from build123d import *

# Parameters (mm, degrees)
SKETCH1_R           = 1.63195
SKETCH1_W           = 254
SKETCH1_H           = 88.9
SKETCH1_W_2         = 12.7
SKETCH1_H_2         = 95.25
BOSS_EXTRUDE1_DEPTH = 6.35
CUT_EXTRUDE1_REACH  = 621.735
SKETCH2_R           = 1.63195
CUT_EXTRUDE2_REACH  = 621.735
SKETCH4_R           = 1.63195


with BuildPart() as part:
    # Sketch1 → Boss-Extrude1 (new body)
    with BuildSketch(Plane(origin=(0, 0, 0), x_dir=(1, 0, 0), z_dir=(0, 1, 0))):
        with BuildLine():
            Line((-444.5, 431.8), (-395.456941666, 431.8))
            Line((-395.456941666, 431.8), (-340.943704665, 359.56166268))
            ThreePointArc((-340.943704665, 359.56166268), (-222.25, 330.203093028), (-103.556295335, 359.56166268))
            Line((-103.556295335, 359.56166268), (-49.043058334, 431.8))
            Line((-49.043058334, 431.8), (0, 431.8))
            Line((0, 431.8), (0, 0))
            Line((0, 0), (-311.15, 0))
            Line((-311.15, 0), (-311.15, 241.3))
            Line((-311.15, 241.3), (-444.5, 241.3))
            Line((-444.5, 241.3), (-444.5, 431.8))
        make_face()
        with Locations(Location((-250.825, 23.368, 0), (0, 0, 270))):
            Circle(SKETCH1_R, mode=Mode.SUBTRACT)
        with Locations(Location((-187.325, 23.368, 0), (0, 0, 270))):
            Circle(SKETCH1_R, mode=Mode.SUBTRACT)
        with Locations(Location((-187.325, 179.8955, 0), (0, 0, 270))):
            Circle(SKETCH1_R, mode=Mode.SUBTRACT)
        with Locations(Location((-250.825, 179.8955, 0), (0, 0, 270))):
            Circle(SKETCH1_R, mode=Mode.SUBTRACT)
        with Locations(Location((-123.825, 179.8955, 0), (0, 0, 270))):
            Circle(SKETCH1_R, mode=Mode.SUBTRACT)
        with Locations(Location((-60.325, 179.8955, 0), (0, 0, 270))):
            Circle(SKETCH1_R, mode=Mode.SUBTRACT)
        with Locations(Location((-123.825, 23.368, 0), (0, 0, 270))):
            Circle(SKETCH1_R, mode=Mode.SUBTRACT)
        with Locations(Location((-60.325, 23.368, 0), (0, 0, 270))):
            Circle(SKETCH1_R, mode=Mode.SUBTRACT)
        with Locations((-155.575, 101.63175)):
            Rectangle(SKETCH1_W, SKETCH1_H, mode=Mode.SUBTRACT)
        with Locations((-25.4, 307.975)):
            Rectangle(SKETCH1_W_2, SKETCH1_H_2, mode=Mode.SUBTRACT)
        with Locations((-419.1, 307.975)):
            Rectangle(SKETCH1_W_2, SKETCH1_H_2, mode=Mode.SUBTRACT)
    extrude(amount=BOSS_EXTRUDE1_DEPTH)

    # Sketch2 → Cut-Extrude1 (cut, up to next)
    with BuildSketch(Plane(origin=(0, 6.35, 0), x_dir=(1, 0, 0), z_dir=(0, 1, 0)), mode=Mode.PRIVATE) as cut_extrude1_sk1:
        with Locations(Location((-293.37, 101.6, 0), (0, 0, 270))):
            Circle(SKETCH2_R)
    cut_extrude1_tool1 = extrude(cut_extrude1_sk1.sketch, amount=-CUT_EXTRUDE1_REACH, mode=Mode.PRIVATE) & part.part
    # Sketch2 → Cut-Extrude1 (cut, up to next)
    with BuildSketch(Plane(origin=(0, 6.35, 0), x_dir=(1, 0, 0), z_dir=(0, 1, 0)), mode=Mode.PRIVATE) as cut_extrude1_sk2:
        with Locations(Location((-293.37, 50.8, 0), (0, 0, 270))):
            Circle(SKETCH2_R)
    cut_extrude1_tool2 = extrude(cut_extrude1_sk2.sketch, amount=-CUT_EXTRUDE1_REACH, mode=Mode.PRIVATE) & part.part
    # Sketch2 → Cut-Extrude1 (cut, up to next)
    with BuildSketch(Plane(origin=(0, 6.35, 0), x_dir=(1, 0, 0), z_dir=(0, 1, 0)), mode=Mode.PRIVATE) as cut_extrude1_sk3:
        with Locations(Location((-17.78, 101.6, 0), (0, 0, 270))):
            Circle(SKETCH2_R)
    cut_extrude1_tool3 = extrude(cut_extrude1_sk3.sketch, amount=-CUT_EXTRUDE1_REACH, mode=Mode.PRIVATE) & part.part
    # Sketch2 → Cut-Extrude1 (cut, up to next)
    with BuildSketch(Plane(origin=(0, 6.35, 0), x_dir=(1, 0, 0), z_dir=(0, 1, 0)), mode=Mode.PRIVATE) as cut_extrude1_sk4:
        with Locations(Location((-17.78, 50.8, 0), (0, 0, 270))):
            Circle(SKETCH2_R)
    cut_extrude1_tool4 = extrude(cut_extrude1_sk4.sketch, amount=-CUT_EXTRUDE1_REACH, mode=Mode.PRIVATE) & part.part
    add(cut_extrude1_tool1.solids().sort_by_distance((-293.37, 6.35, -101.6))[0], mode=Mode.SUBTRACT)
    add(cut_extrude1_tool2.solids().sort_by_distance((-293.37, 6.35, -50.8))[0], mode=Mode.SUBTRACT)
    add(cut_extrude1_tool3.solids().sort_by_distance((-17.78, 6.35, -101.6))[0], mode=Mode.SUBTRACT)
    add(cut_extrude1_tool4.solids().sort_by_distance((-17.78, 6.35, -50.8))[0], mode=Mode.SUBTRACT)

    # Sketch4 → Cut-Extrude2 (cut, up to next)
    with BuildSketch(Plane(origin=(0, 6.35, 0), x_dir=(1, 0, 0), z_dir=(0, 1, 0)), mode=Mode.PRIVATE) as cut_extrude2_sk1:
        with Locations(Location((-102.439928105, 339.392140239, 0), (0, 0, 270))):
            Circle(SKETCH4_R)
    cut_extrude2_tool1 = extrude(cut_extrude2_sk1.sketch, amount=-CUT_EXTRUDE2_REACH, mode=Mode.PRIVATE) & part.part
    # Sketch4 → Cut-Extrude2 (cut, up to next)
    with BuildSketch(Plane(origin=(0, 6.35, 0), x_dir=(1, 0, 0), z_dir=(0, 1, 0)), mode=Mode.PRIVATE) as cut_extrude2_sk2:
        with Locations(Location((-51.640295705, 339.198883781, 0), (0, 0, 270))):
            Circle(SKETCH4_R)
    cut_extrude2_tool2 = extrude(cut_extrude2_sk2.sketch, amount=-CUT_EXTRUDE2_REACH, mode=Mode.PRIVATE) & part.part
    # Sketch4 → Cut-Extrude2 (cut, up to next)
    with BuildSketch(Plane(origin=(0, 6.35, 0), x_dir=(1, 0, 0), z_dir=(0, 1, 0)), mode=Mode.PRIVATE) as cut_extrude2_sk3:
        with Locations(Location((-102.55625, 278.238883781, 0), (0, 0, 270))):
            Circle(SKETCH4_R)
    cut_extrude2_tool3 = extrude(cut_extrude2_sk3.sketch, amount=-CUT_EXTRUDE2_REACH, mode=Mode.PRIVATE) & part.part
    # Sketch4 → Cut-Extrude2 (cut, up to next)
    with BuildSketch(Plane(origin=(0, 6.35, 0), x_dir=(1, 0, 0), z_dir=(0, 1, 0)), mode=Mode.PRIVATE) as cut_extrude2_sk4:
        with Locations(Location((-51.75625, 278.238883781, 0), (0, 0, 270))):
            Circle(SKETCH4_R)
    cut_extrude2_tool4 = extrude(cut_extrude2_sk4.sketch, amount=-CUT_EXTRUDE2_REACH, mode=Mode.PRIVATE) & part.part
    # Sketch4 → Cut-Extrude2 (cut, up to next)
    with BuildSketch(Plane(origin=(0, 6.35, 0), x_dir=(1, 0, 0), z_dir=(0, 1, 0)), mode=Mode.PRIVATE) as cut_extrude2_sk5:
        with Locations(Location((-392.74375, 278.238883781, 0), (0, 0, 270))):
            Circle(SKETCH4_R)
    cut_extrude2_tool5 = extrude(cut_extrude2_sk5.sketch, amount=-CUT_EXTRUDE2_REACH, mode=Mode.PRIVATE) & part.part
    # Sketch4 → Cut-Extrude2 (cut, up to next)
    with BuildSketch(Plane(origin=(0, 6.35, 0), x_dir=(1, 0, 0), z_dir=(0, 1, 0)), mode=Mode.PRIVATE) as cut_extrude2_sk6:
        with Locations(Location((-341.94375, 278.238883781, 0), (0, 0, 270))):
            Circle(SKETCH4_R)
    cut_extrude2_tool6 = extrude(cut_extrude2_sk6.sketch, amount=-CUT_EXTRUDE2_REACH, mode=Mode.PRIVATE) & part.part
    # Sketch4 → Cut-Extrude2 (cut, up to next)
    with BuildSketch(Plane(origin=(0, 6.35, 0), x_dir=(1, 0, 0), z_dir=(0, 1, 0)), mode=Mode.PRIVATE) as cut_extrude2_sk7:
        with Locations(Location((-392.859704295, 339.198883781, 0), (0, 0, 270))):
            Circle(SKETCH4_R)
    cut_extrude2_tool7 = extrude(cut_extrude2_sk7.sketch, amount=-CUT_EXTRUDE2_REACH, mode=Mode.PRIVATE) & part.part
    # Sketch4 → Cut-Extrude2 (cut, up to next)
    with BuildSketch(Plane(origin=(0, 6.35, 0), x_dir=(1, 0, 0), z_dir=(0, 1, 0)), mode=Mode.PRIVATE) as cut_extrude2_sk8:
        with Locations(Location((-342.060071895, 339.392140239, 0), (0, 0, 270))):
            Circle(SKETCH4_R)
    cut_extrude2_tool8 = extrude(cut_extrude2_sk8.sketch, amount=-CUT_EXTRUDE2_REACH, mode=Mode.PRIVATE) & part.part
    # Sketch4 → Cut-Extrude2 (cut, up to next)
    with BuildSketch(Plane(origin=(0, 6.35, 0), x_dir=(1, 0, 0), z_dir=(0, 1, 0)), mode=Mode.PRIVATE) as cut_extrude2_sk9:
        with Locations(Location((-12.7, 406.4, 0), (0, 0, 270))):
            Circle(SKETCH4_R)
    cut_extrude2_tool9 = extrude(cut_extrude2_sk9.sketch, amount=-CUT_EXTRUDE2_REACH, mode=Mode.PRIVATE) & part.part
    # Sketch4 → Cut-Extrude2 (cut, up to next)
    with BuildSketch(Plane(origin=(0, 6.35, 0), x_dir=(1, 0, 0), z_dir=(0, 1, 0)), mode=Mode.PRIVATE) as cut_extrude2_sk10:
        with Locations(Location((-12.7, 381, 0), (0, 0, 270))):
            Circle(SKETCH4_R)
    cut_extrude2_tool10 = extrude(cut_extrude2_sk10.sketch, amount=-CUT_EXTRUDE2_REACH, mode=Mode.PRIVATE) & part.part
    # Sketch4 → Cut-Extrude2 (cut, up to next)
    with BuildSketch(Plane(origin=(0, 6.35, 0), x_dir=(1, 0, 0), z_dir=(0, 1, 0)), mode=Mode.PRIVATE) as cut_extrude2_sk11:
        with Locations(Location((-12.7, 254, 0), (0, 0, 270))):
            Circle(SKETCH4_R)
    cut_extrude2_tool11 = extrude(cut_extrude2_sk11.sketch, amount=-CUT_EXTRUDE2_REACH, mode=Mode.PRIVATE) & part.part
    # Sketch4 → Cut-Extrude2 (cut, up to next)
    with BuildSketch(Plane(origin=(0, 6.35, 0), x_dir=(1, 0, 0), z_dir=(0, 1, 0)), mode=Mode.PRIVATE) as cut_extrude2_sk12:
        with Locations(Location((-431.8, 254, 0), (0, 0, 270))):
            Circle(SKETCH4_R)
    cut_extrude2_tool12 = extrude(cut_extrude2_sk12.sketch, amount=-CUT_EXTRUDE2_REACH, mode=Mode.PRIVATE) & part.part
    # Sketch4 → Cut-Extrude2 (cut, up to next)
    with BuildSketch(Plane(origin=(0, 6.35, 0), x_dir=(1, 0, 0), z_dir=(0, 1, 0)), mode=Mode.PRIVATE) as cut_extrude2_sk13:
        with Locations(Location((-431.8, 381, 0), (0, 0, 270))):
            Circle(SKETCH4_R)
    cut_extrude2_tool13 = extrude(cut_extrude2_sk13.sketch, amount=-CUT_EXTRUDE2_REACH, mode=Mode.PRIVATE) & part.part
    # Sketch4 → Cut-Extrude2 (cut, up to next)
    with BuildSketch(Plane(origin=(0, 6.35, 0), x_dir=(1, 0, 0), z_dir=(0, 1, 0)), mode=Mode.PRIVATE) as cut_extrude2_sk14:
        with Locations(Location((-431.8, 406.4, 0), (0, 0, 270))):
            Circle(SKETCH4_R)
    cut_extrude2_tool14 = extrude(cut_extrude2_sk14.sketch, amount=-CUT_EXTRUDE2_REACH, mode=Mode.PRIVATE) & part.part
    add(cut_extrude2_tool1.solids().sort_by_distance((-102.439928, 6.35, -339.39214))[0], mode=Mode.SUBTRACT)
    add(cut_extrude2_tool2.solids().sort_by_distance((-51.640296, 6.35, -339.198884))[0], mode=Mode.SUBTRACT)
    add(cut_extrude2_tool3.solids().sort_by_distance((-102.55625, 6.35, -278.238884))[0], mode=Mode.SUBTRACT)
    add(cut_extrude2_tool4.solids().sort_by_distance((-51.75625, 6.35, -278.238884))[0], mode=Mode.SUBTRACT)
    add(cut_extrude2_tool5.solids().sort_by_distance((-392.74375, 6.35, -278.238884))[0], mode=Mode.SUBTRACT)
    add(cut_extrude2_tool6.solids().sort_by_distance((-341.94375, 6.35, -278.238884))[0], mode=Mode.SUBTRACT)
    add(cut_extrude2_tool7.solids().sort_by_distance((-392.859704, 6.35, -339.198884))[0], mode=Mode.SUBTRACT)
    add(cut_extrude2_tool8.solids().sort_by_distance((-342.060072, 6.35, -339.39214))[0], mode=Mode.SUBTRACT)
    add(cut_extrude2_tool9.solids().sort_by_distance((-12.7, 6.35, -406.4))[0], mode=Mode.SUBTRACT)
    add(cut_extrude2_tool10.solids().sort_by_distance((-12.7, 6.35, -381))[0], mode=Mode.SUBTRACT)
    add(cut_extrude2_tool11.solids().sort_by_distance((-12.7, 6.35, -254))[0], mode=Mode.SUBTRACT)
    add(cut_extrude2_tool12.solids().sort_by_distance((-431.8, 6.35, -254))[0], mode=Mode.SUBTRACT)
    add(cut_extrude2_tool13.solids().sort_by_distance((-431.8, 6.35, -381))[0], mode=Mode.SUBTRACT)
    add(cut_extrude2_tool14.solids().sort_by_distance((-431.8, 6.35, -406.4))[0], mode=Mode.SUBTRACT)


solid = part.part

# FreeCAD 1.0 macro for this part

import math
import FreeCAD as App
import Part
import Sketcher
Q = App.Units.Quantity

doc = App.newDocument("Part")
body = doc.addObject("PartDesign::Body", "Body")

# Sketch on XZ plane
sketch1 = body.newObject("Sketcher::SketchObject", "Sketch")
sketch1.AttachmentSupport = (doc.getObject("XZ_Plane"), [""])
sketch1.MapMode = "FlatFace"
sketch1.addGeometry([
    Part.LineSegment(App.Vector(-395.5, -431.8, 0), App.Vector(-444.5, -431.8, 0)),  # 0
    Part.LineSegment(App.Vector(-444.5, -431.8, 0), App.Vector(-444.5, -241.3, 0)),  # 1
    Part.LineSegment(App.Vector(-444.5, -241.3, 0), App.Vector(-311.1, -241.3, 0)),  # 2
    Part.LineSegment(App.Vector(-311.1, -241.3, 0), App.Vector(-311.1, 0, 0)),  # 3
    Part.LineSegment(App.Vector(-311.1, 0, 0), App.Vector(0, 0, 0)),  # 4
    Part.LineSegment(App.Vector(0, 0, 0), App.Vector(0, -431.8, 0)),  # 5
    Part.LineSegment(App.Vector(0, -431.8, 0), App.Vector(-49, -431.8, 0)),  # 6
    Part.LineSegment(App.Vector(-49, -431.8, 0), App.Vector(-103.6, -359.6, 0)),  # 7
    Part.ArcOfCircle(Part.Circle(App.Vector(-222.2, -584.8, 0), App.Vector(0, 0, 1), 254.6), math.radians(62), math.radians(118)),  # 8
    Part.LineSegment(App.Vector(-340.9, -359.6, 0), App.Vector(-395.5, -431.8, 0)),  # 9
    Part.Circle(App.Vector(-60.3, -23.4, 0), App.Vector(0, 0, 1), 1.6),  # 10
    Part.Circle(App.Vector(-123.8, -23.4, 0), App.Vector(0, 0, 1), 1.6),  # 11
    Part.Circle(App.Vector(-187.3, -23.4, 0), App.Vector(0, 0, 1), 1.6),  # 12
    Part.LineSegment(App.Vector(-282.6, -57.2, 0), App.Vector(-282.6, -146.1, 0)),  # 13
    Part.LineSegment(App.Vector(-282.6, -146.1, 0), App.Vector(-28.6, -146.1, 0)),  # 14
    Part.LineSegment(App.Vector(-28.6, -146.1, 0), App.Vector(-28.6, -57.2, 0)),  # 15
    Part.LineSegment(App.Vector(-28.6, -57.2, 0), App.Vector(-282.6, -57.2, 0)),  # 16
    Part.Circle(App.Vector(-60.3, -179.9, 0), App.Vector(0, 0, 1), 1.6),  # 17
    Part.Circle(App.Vector(-123.8, -179.9, 0), App.Vector(0, 0, 1), 1.6),  # 18
    Part.Circle(App.Vector(-187.3, -179.9, 0), App.Vector(0, 0, 1), 1.6),  # 19
    Part.Circle(App.Vector(-250.8, -23.4, 0), App.Vector(0, 0, 1), 1.6),  # 20
    Part.Circle(App.Vector(-250.8, -179.9, 0), App.Vector(0, 0, 1), 1.6),  # 21
    Part.LineSegment(App.Vector(-31.8, -260.4, 0), App.Vector(-31.8, -355.6, 0)),  # 22
    Part.LineSegment(App.Vector(-31.8, -355.6, 0), App.Vector(-19.1, -355.6, 0)),  # 23
    Part.LineSegment(App.Vector(-19.1, -355.6, 0), App.Vector(-19.1, -260.4, 0)),  # 24
    Part.LineSegment(App.Vector(-19.1, -260.4, 0), App.Vector(-31.8, -260.4, 0)),  # 25
    Part.LineSegment(App.Vector(-425.4, -260.4, 0), App.Vector(-425.4, -355.6, 0)),  # 26
    Part.LineSegment(App.Vector(-425.4, -355.6, 0), App.Vector(-412.8, -355.6, 0)),  # 27
    Part.LineSegment(App.Vector(-412.8, -355.6, 0), App.Vector(-412.8, -260.4, 0)),  # 28
    Part.LineSegment(App.Vector(-412.8, -260.4, 0), App.Vector(-425.4, -260.4, 0)),  # 29
], False)
sketch1.addConstraint([
    Sketcher.Constraint("Coincident", 0, 2, 1, 1),
    Sketcher.Constraint("Coincident", 1, 2, 2, 1),
    Sketcher.Constraint("Coincident", 2, 2, 3, 1),
    Sketcher.Constraint("Coincident", 3, 2, 4, 1),
    Sketcher.Constraint("Coincident", 4, 2, 5, 1),
    Sketcher.Constraint("Coincident", 5, 2, 6, 1),
    Sketcher.Constraint("Coincident", 6, 2, 7, 1),
    Sketcher.Constraint("Coincident", 7, 2, 8, 1),
    Sketcher.Constraint("Coincident", 8, 2, 9, 1),
    Sketcher.Constraint("Coincident", 9, 2, 0, 1),
    Sketcher.Constraint("Coincident", 13, 2, 14, 1),
    Sketcher.Constraint("Coincident", 14, 2, 15, 1),
    Sketcher.Constraint("Coincident", 15, 2, 16, 1),
    Sketcher.Constraint("Coincident", 16, 2, 13, 1),
    Sketcher.Constraint("Coincident", 22, 2, 23, 1),
    Sketcher.Constraint("Coincident", 23, 2, 24, 1),
    Sketcher.Constraint("Coincident", 24, 2, 25, 1),
    Sketcher.Constraint("Coincident", 25, 2, 22, 1),
    Sketcher.Constraint("Coincident", 26, 2, 27, 1),
    Sketcher.Constraint("Coincident", 27, 2, 28, 1),
    Sketcher.Constraint("Coincident", 28, 2, 29, 1),
    Sketcher.Constraint("Coincident", 29, 2, 26, 1),
    Sketcher.Constraint("Horizontal", 0),
    Sketcher.Constraint("Vertical", 1),
    Sketcher.Constraint("Horizontal", 2),
    Sketcher.Constraint("Vertical", 3),
    Sketcher.Constraint("Horizontal", 4),
    Sketcher.Constraint("Vertical", 5),
    Sketcher.Constraint("Horizontal", 6),
    Sketcher.Constraint("Vertical", 13),
    Sketcher.Constraint("Horizontal", 14),
    Sketcher.Constraint("Vertical", 15),
    Sketcher.Constraint("Horizontal", 16),
    Sketcher.Constraint("Vertical", 22),
    Sketcher.Constraint("Horizontal", 23),
    Sketcher.Constraint("Vertical", 24),
    Sketcher.Constraint("Horizontal", 25),
    Sketcher.Constraint("Vertical", 26),
    Sketcher.Constraint("Horizontal", 27),
    Sketcher.Constraint("Vertical", 28),
    Sketcher.Constraint("Horizontal", 29),
    Sketcher.Constraint("Coincident", 4, 2, -1, 1),
    Sketcher.Constraint("Equal", 10, 11),
    Sketcher.Constraint("Equal", 11, 12),
    Sketcher.Constraint("Equal", 12, 17),
    Sketcher.Constraint("Equal", 17, 18),
    Sketcher.Constraint("Equal", 18, 19),
    Sketcher.Constraint("Equal", 19, 20),
    Sketcher.Constraint("Equal", 20, 21),
    Sketcher.Constraint("Horizontal", 10, 3, 11, 3),
    Sketcher.Constraint("Horizontal", 11, 3, 12, 3),
    Sketcher.Constraint("Horizontal", 17, 3, 18, 3),
    Sketcher.Constraint("Horizontal", 18, 3, 19, 3),
    Sketcher.Constraint("Horizontal", 12, 3, 20, 3),
    Sketcher.Constraint("Horizontal", 19, 3, 21, 3),
    Sketcher.Constraint("Horizontal", 0, 2, 5, 2),
    Sketcher.Constraint("Horizontal", 7, 2, 8, 2),
    Sketcher.Constraint("Horizontal", 23, 2, 26, 2),
    Sketcher.Constraint("Horizontal", 25, 2, 28, 2),
    Sketcher.Constraint("Vertical", 10, 3, 17, 3),
    Sketcher.Constraint("Vertical", 11, 3, 18, 3),
    Sketcher.Constraint("Vertical", 12, 3, 19, 3),
    Sketcher.Constraint("Vertical", 20, 3, 21, 3),
    Sketcher.Constraint("Equal", 0, 6),
    Sketcher.Constraint("Equal", 25, 27),
    Sketcher.Constraint("Equal", 7, 9),
    Sketcher.Constraint("DistanceX", 14, 1, 14, 2, Q("10 in")),
    Sketcher.Constraint("DistanceY", 5, 2, 5, 1, Q("17 in")),
    Sketcher.Constraint("DistanceX", 23, 1, 23, 2, Q("0.5 in")),
    Sketcher.Constraint("DistanceY", 1, 1, 1, 2, Q("7.5 in")),
    Sketcher.Constraint("DistanceY", 13, 2, 13, 1, Q("3.5 in")),
    Sketcher.Constraint("DistanceY", 22, 2, -1, 1, Q("14 in")),
    Sketcher.Constraint("DistanceX", 12, 3, 10, 3, Q("5 in")),
    Sketcher.Constraint("DistanceX", 20, 3, 11, 3, Q("5 in")),
    Sketcher.Constraint("DistanceX", 28, 2, 2, 2, Q("4 in")),
    Sketcher.Constraint("Diameter", 10, Q("0.1285 in")),
    Sketcher.Constraint("DistanceX", 2, 1, 2, 2, Q("5.25 in")),
    Sketcher.Constraint("DistanceX", 4, 1, 4, 2, Q("12.25 in")),
    Sketcher.Constraint("DistanceY", 22, 2, 22, 1, Q("3.75 in")),
    Sketcher.Constraint("DistanceX", 11, 3, 10, 3, Q("2.5 in")),
    Sketcher.Constraint("DistanceY", 10, 3, -1, 1, Q("0.92 in")),
    Sketcher.Constraint("DistanceX", 22, 2, -1, 1, Q("1.25 in")),
    Sketcher.Constraint("DistanceX", 13, 2, 21, 3, Q("1.25 in")),
    Sketcher.Constraint("DistanceX", 10, 3, -1, 1, Q("2.375 in")),
    Sketcher.Constraint("Radius", 8, Q("254.61256 mm")),
    Sketcher.Constraint("DistanceY", 17, 3, -1, 1, Q("7.0825 in")),
    Sketcher.Constraint("DistanceX", 0, 2, 0, 1, Q("49.043058 mm")),
    Sketcher.Constraint("DistanceY", 13, 2, -1, 1, Q("146.08175 mm")),
    Sketcher.Constraint("Distance", 7, Q("90.499008 mm")),
    Sketcher.Constraint("DistanceY", 8, 3, -1, 1, Q("584.815653 mm")),
])
pad1 = body.newObject("PartDesign::Pad", "Pad")
pad1.Profile = sketch1
pad1.Length = Q("0.25 in")
pad1.Reversed = True

# Sketch on XZ plane
sketch2 = body.newObject("Sketcher::SketchObject", "Sketch001")
sketch2.AttachmentSupport = (doc.getObject("XZ_Plane"), [""])
sketch2.MapMode = "FlatFace"
sketch2.AttachmentOffset = App.Placement(App.Vector(0, 0, -0.25 * 25.4), App.Rotation())
sketch2.addGeometry(Part.Circle(App.Vector(-293.4, -101.6, 0), App.Vector(0, 0, 1), 1.6), False)
sketch2.addConstraint([
    Sketcher.Constraint("DistanceY", 0, 3, -1, 1, Q("4 in")),
    Sketcher.Constraint("Diameter", 0, Q("0.1285 in")),
    Sketcher.Constraint("DistanceX", 0, 3, -1, 1, Q("11.55 in")),
])
pocket1 = body.newObject("PartDesign::Pocket", "Pocket")
pocket1.Profile = sketch2
pocket1.Type = "UpToFirst"
pocket1.Reversed = True

# Sketch on XZ plane
sketch3 = body.newObject("Sketcher::SketchObject", "Sketch002")
sketch3.AttachmentSupport = (doc.getObject("XZ_Plane"), [""])
sketch3.MapMode = "FlatFace"
sketch3.AttachmentOffset = App.Placement(App.Vector(0, 0, -0.25 * 25.4), App.Rotation())
sketch3.addGeometry(Part.Circle(App.Vector(-293.4, -50.8, 0), App.Vector(0, 0, 1), 1.6), False)
sketch3.addConstraint([
    Sketcher.Constraint("DistanceY", 0, 3, -1, 1, Q("2 in")),
    Sketcher.Constraint("Diameter", 0, Q("0.1285 in")),
    Sketcher.Constraint("DistanceX", 0, 3, -1, 1, Q("11.55 in")),
])
pocket2 = body.newObject("PartDesign::Pocket", "Pocket001")
pocket2.Profile = sketch3
pocket2.Type = "UpToFirst"
pocket2.Reversed = True

# Sketch on XZ plane
sketch4 = body.newObject("Sketcher::SketchObject", "Sketch003")
sketch4.AttachmentSupport = (doc.getObject("XZ_Plane"), [""])
sketch4.MapMode = "FlatFace"
sketch4.AttachmentOffset = App.Placement(App.Vector(0, 0, -0.25 * 25.4), App.Rotation())
sketch4.addGeometry(Part.Circle(App.Vector(-17.8, -101.6, 0), App.Vector(0, 0, 1), 1.6), False)
sketch4.addConstraint([
    Sketcher.Constraint("DistanceY", 0, 3, -1, 1, Q("4 in")),
    Sketcher.Constraint("Diameter", 0, Q("0.1285 in")),
    Sketcher.Constraint("DistanceX", 0, 3, -1, 1, Q("0.7 in")),
])
pocket3 = body.newObject("PartDesign::Pocket", "Pocket002")
pocket3.Profile = sketch4
pocket3.Type = "UpToFirst"
pocket3.Reversed = True

# Sketch on XZ plane
sketch5 = body.newObject("Sketcher::SketchObject", "Sketch004")
sketch5.AttachmentSupport = (doc.getObject("XZ_Plane"), [""])
sketch5.MapMode = "FlatFace"
sketch5.AttachmentOffset = App.Placement(App.Vector(0, 0, -0.25 * 25.4), App.Rotation())
sketch5.addGeometry(Part.Circle(App.Vector(-17.8, -50.8, 0), App.Vector(0, 0, 1), 1.6), False)
sketch5.addConstraint([
    Sketcher.Constraint("DistanceY", 0, 3, -1, 1, Q("2 in")),
    Sketcher.Constraint("Diameter", 0, Q("0.1285 in")),
    Sketcher.Constraint("DistanceX", 0, 3, -1, 1, Q("0.7 in")),
])
pocket4 = body.newObject("PartDesign::Pocket", "Pocket003")
pocket4.Profile = sketch5
pocket4.Type = "UpToFirst"
pocket4.Reversed = True

# Sketch on XZ plane
sketch6 = body.newObject("Sketcher::SketchObject", "Sketch005")
sketch6.AttachmentSupport = (doc.getObject("XZ_Plane"), [""])
sketch6.MapMode = "FlatFace"
sketch6.AttachmentOffset = App.Placement(App.Vector(0, 0, -0.25 * 25.4), App.Rotation())
sketch6.addGeometry(Part.Circle(App.Vector(-102.4, -339.4, 0), App.Vector(0, 0, 1), 1.6), False)
sketch6.addConstraint([
    Sketcher.Constraint("Diameter", 0, Q("0.1285 in")),
    Sketcher.Constraint("DistanceX", 0, 3, -1, 1, Q("102.439928 mm")),
    Sketcher.Constraint("DistanceY", 0, 3, -1, 1, Q("339.39214 mm")),
])
pocket5 = body.newObject("PartDesign::Pocket", "Pocket004")
pocket5.Profile = sketch6
pocket5.Type = "UpToFirst"
pocket5.Reversed = True

# Sketch on XZ plane
sketch7 = body.newObject("Sketcher::SketchObject", "Sketch006")
sketch7.AttachmentSupport = (doc.getObject("XZ_Plane"), [""])
sketch7.MapMode = "FlatFace"
sketch7.AttachmentOffset = App.Placement(App.Vector(0, 0, -0.25 * 25.4), App.Rotation())
sketch7.addGeometry(Part.Circle(App.Vector(-51.6, -339.2, 0), App.Vector(0, 0, 1), 1.6), False)
sketch7.addConstraint([
    Sketcher.Constraint("Diameter", 0, Q("0.1285 in")),
    Sketcher.Constraint("DistanceX", 0, 3, -1, 1, Q("51.640296 mm")),
    Sketcher.Constraint("DistanceY", 0, 3, -1, 1, Q("339.198884 mm")),
])
pocket6 = body.newObject("PartDesign::Pocket", "Pocket005")
pocket6.Profile = sketch7
pocket6.Type = "UpToFirst"
pocket6.Reversed = True

# Sketch on XZ plane
sketch8 = body.newObject("Sketcher::SketchObject", "Sketch007")
sketch8.AttachmentSupport = (doc.getObject("XZ_Plane"), [""])
sketch8.MapMode = "FlatFace"
sketch8.AttachmentOffset = App.Placement(App.Vector(0, 0, -0.25 * 25.4), App.Rotation())
sketch8.addGeometry(Part.Circle(App.Vector(-102.6, -278.2, 0), App.Vector(0, 0, 1), 1.6), False)
sketch8.addConstraint([
    Sketcher.Constraint("Diameter", 0, Q("0.1285 in")),
    Sketcher.Constraint("DistanceX", 0, 3, -1, 1, Q("102.55625 mm")),
    Sketcher.Constraint("DistanceY", 0, 3, -1, 1, Q("278.238884 mm")),
])
pocket7 = body.newObject("PartDesign::Pocket", "Pocket006")
pocket7.Profile = sketch8
pocket7.Type = "UpToFirst"
pocket7.Reversed = True

# Sketch on XZ plane
sketch9 = body.newObject("Sketcher::SketchObject", "Sketch008")
sketch9.AttachmentSupport = (doc.getObject("XZ_Plane"), [""])
sketch9.MapMode = "FlatFace"
sketch9.AttachmentOffset = App.Placement(App.Vector(0, 0, -0.25 * 25.4), App.Rotation())
sketch9.addGeometry(Part.Circle(App.Vector(-51.8, -278.2, 0), App.Vector(0, 0, 1), 1.6), False)
sketch9.addConstraint([
    Sketcher.Constraint("Diameter", 0, Q("0.1285 in")),
    Sketcher.Constraint("DistanceX", 0, 3, -1, 1, Q("51.75625 mm")),
    Sketcher.Constraint("DistanceY", 0, 3, -1, 1, Q("278.238884 mm")),
])
pocket8 = body.newObject("PartDesign::Pocket", "Pocket007")
pocket8.Profile = sketch9
pocket8.Type = "UpToFirst"
pocket8.Reversed = True

# Sketch on XZ plane
sketch10 = body.newObject("Sketcher::SketchObject", "Sketch009")
sketch10.AttachmentSupport = (doc.getObject("XZ_Plane"), [""])
sketch10.MapMode = "FlatFace"
sketch10.AttachmentOffset = App.Placement(App.Vector(0, 0, -0.25 * 25.4), App.Rotation())
sketch10.addGeometry(Part.Circle(App.Vector(-392.7, -278.2, 0), App.Vector(0, 0, 1), 1.6), False)
sketch10.addConstraint([
    Sketcher.Constraint("Diameter", 0, Q("0.1285 in")),
    Sketcher.Constraint("DistanceX", 0, 3, -1, 1, Q("392.74375 mm")),
    Sketcher.Constraint("DistanceY", 0, 3, -1, 1, Q("278.238884 mm")),
])
pocket9 = body.newObject("PartDesign::Pocket", "Pocket008")
pocket9.Profile = sketch10
pocket9.Type = "UpToFirst"
pocket9.Reversed = True

# Sketch on XZ plane
sketch11 = body.newObject("Sketcher::SketchObject", "Sketch010")
sketch11.AttachmentSupport = (doc.getObject("XZ_Plane"), [""])
sketch11.MapMode = "FlatFace"
sketch11.AttachmentOffset = App.Placement(App.Vector(0, 0, -0.25 * 25.4), App.Rotation())
sketch11.addGeometry(Part.Circle(App.Vector(-341.9, -278.2, 0), App.Vector(0, 0, 1), 1.6), False)
sketch11.addConstraint([
    Sketcher.Constraint("Diameter", 0, Q("0.1285 in")),
    Sketcher.Constraint("DistanceX", 0, 3, -1, 1, Q("341.94375 mm")),
    Sketcher.Constraint("DistanceY", 0, 3, -1, 1, Q("278.238884 mm")),
])
pocket10 = body.newObject("PartDesign::Pocket", "Pocket009")
pocket10.Profile = sketch11
pocket10.Type = "UpToFirst"
pocket10.Reversed = True

# Sketch on XZ plane
sketch12 = body.newObject("Sketcher::SketchObject", "Sketch011")
sketch12.AttachmentSupport = (doc.getObject("XZ_Plane"), [""])
sketch12.MapMode = "FlatFace"
sketch12.AttachmentOffset = App.Placement(App.Vector(0, 0, -0.25 * 25.4), App.Rotation())
sketch12.addGeometry(Part.Circle(App.Vector(-392.9, -339.2, 0), App.Vector(0, 0, 1), 1.6), False)
sketch12.addConstraint([
    Sketcher.Constraint("Diameter", 0, Q("0.1285 in")),
    Sketcher.Constraint("DistanceX", 0, 3, -1, 1, Q("392.859704 mm")),
    Sketcher.Constraint("DistanceY", 0, 3, -1, 1, Q("339.198884 mm")),
])
pocket11 = body.newObject("PartDesign::Pocket", "Pocket010")
pocket11.Profile = sketch12
pocket11.Type = "UpToFirst"
pocket11.Reversed = True

# Sketch on XZ plane
sketch13 = body.newObject("Sketcher::SketchObject", "Sketch012")
sketch13.AttachmentSupport = (doc.getObject("XZ_Plane"), [""])
sketch13.MapMode = "FlatFace"
sketch13.AttachmentOffset = App.Placement(App.Vector(0, 0, -0.25 * 25.4), App.Rotation())
sketch13.addGeometry(Part.Circle(App.Vector(-342.1, -339.4, 0), App.Vector(0, 0, 1), 1.6), False)
sketch13.addConstraint([
    Sketcher.Constraint("Diameter", 0, Q("0.1285 in")),
    Sketcher.Constraint("DistanceX", 0, 3, -1, 1, Q("342.060072 mm")),
    Sketcher.Constraint("DistanceY", 0, 3, -1, 1, Q("339.39214 mm")),
])
pocket12 = body.newObject("PartDesign::Pocket", "Pocket011")
pocket12.Profile = sketch13
pocket12.Type = "UpToFirst"
pocket12.Reversed = True

# Sketch on XZ plane
sketch14 = body.newObject("Sketcher::SketchObject", "Sketch013")
sketch14.AttachmentSupport = (doc.getObject("XZ_Plane"), [""])
sketch14.MapMode = "FlatFace"
sketch14.AttachmentOffset = App.Placement(App.Vector(0, 0, -0.25 * 25.4), App.Rotation())
sketch14.addGeometry(Part.Circle(App.Vector(-12.7, -406.4, 0), App.Vector(0, 0, 1), 1.6), False)
sketch14.addConstraint([
    Sketcher.Constraint("DistanceY", 0, 3, -1, 1, Q("16 in")),
    Sketcher.Constraint("Diameter", 0, Q("0.1285 in")),
    Sketcher.Constraint("DistanceX", 0, 3, -1, 1, Q("0.5 in")),
])
pocket13 = body.newObject("PartDesign::Pocket", "Pocket012")
pocket13.Profile = sketch14
pocket13.Type = "UpToFirst"
pocket13.Reversed = True

# Sketch on XZ plane
sketch15 = body.newObject("Sketcher::SketchObject", "Sketch014")
sketch15.AttachmentSupport = (doc.getObject("XZ_Plane"), [""])
sketch15.MapMode = "FlatFace"
sketch15.AttachmentOffset = App.Placement(App.Vector(0, 0, -0.25 * 25.4), App.Rotation())
sketch15.addGeometry(Part.Circle(App.Vector(-12.7, -381, 0), App.Vector(0, 0, 1), 1.6), False)
sketch15.addConstraint([
    Sketcher.Constraint("DistanceY", 0, 3, -1, 1, Q("15 in")),
    Sketcher.Constraint("Diameter", 0, Q("0.1285 in")),
    Sketcher.Constraint("DistanceX", 0, 3, -1, 1, Q("0.5 in")),
])
pocket14 = body.newObject("PartDesign::Pocket", "Pocket013")
pocket14.Profile = sketch15
pocket14.Type = "UpToFirst"
pocket14.Reversed = True

# Sketch on XZ plane
sketch16 = body.newObject("Sketcher::SketchObject", "Sketch015")
sketch16.AttachmentSupport = (doc.getObject("XZ_Plane"), [""])
sketch16.MapMode = "FlatFace"
sketch16.AttachmentOffset = App.Placement(App.Vector(0, 0, -0.25 * 25.4), App.Rotation())
sketch16.addGeometry(Part.Circle(App.Vector(-12.7, -254, 0), App.Vector(0, 0, 1), 1.6), False)
sketch16.addConstraint([
    Sketcher.Constraint("DistanceY", 0, 3, -1, 1, Q("10 in")),
    Sketcher.Constraint("Diameter", 0, Q("0.1285 in")),
    Sketcher.Constraint("DistanceX", 0, 3, -1, 1, Q("0.5 in")),
])
pocket15 = body.newObject("PartDesign::Pocket", "Pocket014")
pocket15.Profile = sketch16
pocket15.Type = "UpToFirst"
pocket15.Reversed = True

# Sketch on XZ plane
sketch17 = body.newObject("Sketcher::SketchObject", "Sketch016")
sketch17.AttachmentSupport = (doc.getObject("XZ_Plane"), [""])
sketch17.MapMode = "FlatFace"
sketch17.AttachmentOffset = App.Placement(App.Vector(0, 0, -0.25 * 25.4), App.Rotation())
sketch17.addGeometry(Part.Circle(App.Vector(-431.8, -254, 0), App.Vector(0, 0, 1), 1.6), False)
sketch17.addConstraint([
    Sketcher.Constraint("DistanceX", 0, 3, -1, 1, Q("17 in")),
    Sketcher.Constraint("DistanceY", 0, 3, -1, 1, Q("10 in")),
    Sketcher.Constraint("Diameter", 0, Q("0.1285 in")),
])
pocket16 = body.newObject("PartDesign::Pocket", "Pocket015")
pocket16.Profile = sketch17
pocket16.Type = "UpToFirst"
pocket16.Reversed = True

# Sketch on XZ plane
sketch18 = body.newObject("Sketcher::SketchObject", "Sketch017")
sketch18.AttachmentSupport = (doc.getObject("XZ_Plane"), [""])
sketch18.MapMode = "FlatFace"
sketch18.AttachmentOffset = App.Placement(App.Vector(0, 0, -0.25 * 25.4), App.Rotation())
sketch18.addGeometry(Part.Circle(App.Vector(-431.8, -381, 0), App.Vector(0, 0, 1), 1.6), False)
sketch18.addConstraint([
    Sketcher.Constraint("DistanceX", 0, 3, -1, 1, Q("17 in")),
    Sketcher.Constraint("DistanceY", 0, 3, -1, 1, Q("15 in")),
    Sketcher.Constraint("Diameter", 0, Q("0.1285 in")),
])
pocket17 = body.newObject("PartDesign::Pocket", "Pocket016")
pocket17.Profile = sketch18
pocket17.Type = "UpToFirst"
pocket17.Reversed = True

# Sketch on XZ plane
sketch19 = body.newObject("Sketcher::SketchObject", "Sketch018")
sketch19.AttachmentSupport = (doc.getObject("XZ_Plane"), [""])
sketch19.MapMode = "FlatFace"
sketch19.AttachmentOffset = App.Placement(App.Vector(0, 0, -0.25 * 25.4), App.Rotation())
sketch19.addGeometry(Part.Circle(App.Vector(-431.8, -406.4, 0), App.Vector(0, 0, 1), 1.6), False)
sketch19.addConstraint([
    Sketcher.Constraint("DistanceX", 0, 3, -1, 1, Q("17 in")),
    Sketcher.Constraint("DistanceY", 0, 3, -1, 1, Q("16 in")),
    Sketcher.Constraint("Diameter", 0, Q("0.1285 in")),
])
pocket18 = body.newObject("PartDesign::Pocket", "Pocket017")
pocket18.Profile = sketch19
pocket18.Type = "UpToFirst"
pocket18.Reversed = True

doc.recompute()
